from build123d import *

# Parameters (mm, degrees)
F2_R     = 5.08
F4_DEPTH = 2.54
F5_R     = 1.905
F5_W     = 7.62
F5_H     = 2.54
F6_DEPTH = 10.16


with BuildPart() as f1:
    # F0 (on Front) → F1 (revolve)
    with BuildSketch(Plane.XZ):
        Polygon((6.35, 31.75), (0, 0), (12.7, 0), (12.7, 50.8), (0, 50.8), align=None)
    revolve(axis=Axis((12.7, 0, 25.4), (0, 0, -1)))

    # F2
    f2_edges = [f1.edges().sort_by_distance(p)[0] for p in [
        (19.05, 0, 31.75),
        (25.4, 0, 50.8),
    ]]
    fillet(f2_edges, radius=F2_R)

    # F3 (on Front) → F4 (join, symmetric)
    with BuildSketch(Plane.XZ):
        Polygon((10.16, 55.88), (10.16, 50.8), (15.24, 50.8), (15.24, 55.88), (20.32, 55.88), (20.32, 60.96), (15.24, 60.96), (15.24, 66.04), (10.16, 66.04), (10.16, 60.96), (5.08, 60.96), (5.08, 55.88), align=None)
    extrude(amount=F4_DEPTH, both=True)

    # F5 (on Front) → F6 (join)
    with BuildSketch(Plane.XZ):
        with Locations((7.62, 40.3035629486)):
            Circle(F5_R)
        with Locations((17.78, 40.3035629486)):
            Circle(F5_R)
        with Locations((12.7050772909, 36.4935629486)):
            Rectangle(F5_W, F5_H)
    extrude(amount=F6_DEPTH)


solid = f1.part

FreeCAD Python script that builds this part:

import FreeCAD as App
import Part
import Sketcher
Q = App.Units.Quantity


def edges_at(feature, points):
    """Names of the edges that pass closest to the given points."""
    edges = feature.Shape.Edges
    near = lambda p: min(range(len(edges)), key=lambda i: edges[i].distToShape(Part.Vertex(*p))[0])
    return sorted({f"Edge{near(p) + 1}" for p in points})

doc = App.newDocument("Part")
body = doc.addObject("PartDesign::Body", "Body")

sketch1 = body.newObject("Sketcher::SketchObject", "Sketch")
sketch1.AttachmentSupport = (doc.getObject("XZ_Plane"), [""])
sketch1.MapMode = "FlatFace"
sketch1.addGeometry([
    Part.LineSegment(App.Vector(6, 32, 0), App.Vector(0, 0, 0)),
    Part.LineSegment(App.Vector(0, 0, 0), App.Vector(13, 0, 0)),
    Part.LineSegment(App.Vector(13, 0, 0), App.Vector(13, 51, 0)),
    Part.LineSegment(App.Vector(13, 51, 0), App.Vector(0, 51, 0)),
    Part.LineSegment(App.Vector(0, 51, 0), App.Vector(6, 32, 0)),
], False)
sketch1.addGeometry(Part.LineSegment(App.Vector(13, 51, 0), App.Vector(13, 0, 0)), True)
sketch1.addConstraint([
    Sketcher.Constraint("Coincident", 0, 2, 1, 1),
    Sketcher.Constraint("Coincident", 1, 2, 2, 1),
    Sketcher.Constraint("Coincident", 2, 2, 3, 1),
    Sketcher.Constraint("Coincident", 3, 2, 4, 1),
    Sketcher.Constraint("Coincident", 4, 2, 0, 1),
    Sketcher.Constraint("Horizontal", 1),
    Sketcher.Constraint("Vertical", 2),
    Sketcher.Constraint("Horizontal", 3),
    Sketcher.Constraint("Vertical", 5),
    Sketcher.Constraint("Coincident", 0, 2, -1, 1),
    Sketcher.Constraint("Coincident", 5, 1, 2, 2),
    Sketcher.Constraint("PointOnObject", 3, 2, -2),
    Sketcher.Constraint("PointOnObject", 5, 2, -1),
    Sketcher.Constraint("DistanceY", 2, 1, 2, 2, Q("2 in")),
    Sketcher.Constraint("DistanceX", 1, 1, 1, 2, Q("0.5 in")),
    Sketcher.Constraint("DistanceX", -1, 1, 4, 2, Q("0.25 in")),
    Sketcher.Constraint("DistanceY", -1, 1, 4, 2, Q("1.25 in")),
])
revolution = body.newObject("PartDesign::Revolution", "Revolution")
revolution.Profile = sketch1
revolution.ReferenceAxis = (sketch1, ["Axis0"])
revolution.Angle = 360
doc.recompute()

fillet = body.newObject("PartDesign::Fillet", "Fillet")
fillet.Base = (revolution, edges_at(revolution, [(19.05, 0, 31.75), (25.4, 0, 50.8)]))
fillet.Radius = Q("0.2 in")

sketch2 = body.newObject("Sketcher::SketchObject", "Sketch001")
sketch2.AttachmentSupport = (doc.getObject("XZ_Plane"), [""])
sketch2.MapMode = "FlatFace"
sketch2.addGeometry([
    Part.LineSegment(App.Vector(10, 56, 0), App.Vector(10, 51, 0)),
    Part.LineSegment(App.Vector(10, 51, 0), App.Vector(15, 51, 0)),
    Part.LineSegment(App.Vector(15, 51, 0), App.Vector(15, 56, 0)),
    Part.LineSegment(App.Vector(15, 56, 0), App.Vector(20, 56, 0)),
    Part.LineSegment(App.Vector(20, 56, 0), App.Vector(20, 61, 0)),
    Part.LineSegment(App.Vector(20, 61, 0), App.Vector(15, 61, 0)),
    Part.LineSegment(App.Vector(15, 61, 0), App.Vector(15, 66, 0)),
    Part.LineSegment(App.Vector(15, 66, 0), App.Vector(10, 66, 0)),
    Part.LineSegment(App.Vector(10, 66, 0), App.Vector(10, 61, 0)),
    Part.LineSegment(App.Vector(10, 61, 0), App.Vector(5, 61, 0)),
    Part.LineSegment(App.Vector(5, 61, 0), App.Vector(5, 56, 0)),
    Part.LineSegment(App.Vector(5, 56, 0), App.Vector(10, 56, 0)),
], False)
sketch2.addConstraint([
    Sketcher.Constraint("Coincident", 0, 2, 1, 1),
    Sketcher.Constraint("Coincident", 1, 2, 2, 1),
    Sketcher.Constraint("Coincident", 2, 2, 3, 1),
    Sketcher.Constraint("Coincident", 3, 2, 4, 1),
    Sketcher.Constraint("Coincident", 4, 2, 5, 1),
    Sketcher.Constraint("Coincident", 5, 2, 6, 1),
    Sketcher.Constraint("Coincident", 6, 2, 7, 1),
    Sketcher.Constraint("Coincident", 7, 2, 8, 1),
    Sketcher.Constraint("Coincident", 8, 2, 9, 1),
    Sketcher.Constraint("Coincident", 9, 2, 10, 1),
    Sketcher.Constraint("Coincident", 10, 2, 11, 1),
    Sketcher.Constraint("Coincident", 11, 2, 0, 1),
    Sketcher.Constraint("Vertical", 0),
    Sketcher.Constraint("Horizontal", 1),
    Sketcher.Constraint("Vertical", 2),
    Sketcher.Constraint("Horizontal", 3),
    Sketcher.Constraint("Vertical", 4),
    Sketcher.Constraint("Horizontal", 5),
    Sketcher.Constraint("Vertical", 6),
    Sketcher.Constraint("Horizontal", 7),
    Sketcher.Constraint("Vertical", 8),
    Sketcher.Constraint("Horizontal", 9),
    Sketcher.Constraint("Vertical", 10),
    Sketcher.Constraint("Horizontal", 11),
    Sketcher.Constraint("Horizontal", 5, 2, 8, 2),
    Sketcher.Constraint("Horizontal", 3, 2, 10, 2),
    Sketcher.Constraint("Vertical", 2, 2, 5, 2),
    Sketcher.Constraint("Vertical", 0, 2, 7, 2),
    Sketcher.Constraint("Equal", 1, 3),
    Sketcher.Constraint("Equal", 7, 9),
    Sketcher.Constraint("Equal", 11, 0),
    Sketcher.Constraint("Equal", 2, 4),
    Sketcher.Constraint("Equal", 4, 6),
    Sketcher.Constraint("DistanceX", 1, 1, 1, 2, Q("0.2 in")),
    Sketcher.Constraint("DistanceY", -1, 1, 0, 2, Q("2 in")),
    Sketcher.Constraint("DistanceX", -1, 1, 0, 2, Q("0.4 in")),
])
pad1 = body.newObject("PartDesign::Pad", "Pad")
pad1.Profile = sketch2
pad1.Length = Q("0.2 in")
pad1.Midplane = True

sketch3 = body.newObject("Sketcher::SketchObject", "Sketch002")
sketch3.AttachmentSupport = (doc.getObject("XZ_Plane"), [""])
sketch3.MapMode = "FlatFace"
sketch3.addGeometry([
    Part.Circle(App.Vector(7.6, 40.3, 0), App.Vector(0, 0, 1), 1.9),
    Part.Circle(App.Vector(17.8, 40.3, 0), App.Vector(0, 0, 1), 1.9),
    Part.LineSegment(App.Vector(8.9, 37.8, 0), App.Vector(8.9, 35.2, 0)),
    Part.LineSegment(App.Vector(8.9, 35.2, 0), App.Vector(16.5, 35.2, 0)),
    Part.LineSegment(App.Vector(16.5, 35.2, 0), App.Vector(16.5, 37.8, 0)),
    Part.LineSegment(App.Vector(16.5, 37.8, 0), App.Vector(8.9, 37.8, 0)),
], False)
sketch3.addConstraint([
    Sketcher.Constraint("Coincident", 2, 2, 3, 1),
    Sketcher.Constraint("Coincident", 3, 2, 4, 1),
    Sketcher.Constraint("Coincident", 4, 2, 5, 1),
    Sketcher.Constraint("Coincident", 5, 2, 2, 1),
    Sketcher.Constraint("Vertical", 2),
    Sketcher.Constraint("Horizontal", 3),
    Sketcher.Constraint("Vertical", 4),
    Sketcher.Constraint("Horizontal", 5),
    Sketcher.Constraint("Equal", 0, 1),
    Sketcher.Constraint("Horizontal", 0, 3, 1, 3),
    Sketcher.Constraint("Diameter", 0, Q("0.15 in")),
    Sketcher.Constraint("DistanceX", 3, 1, 3, 2, Q("0.3 in")),
    Sketcher.Constraint("DistanceY", 2, 2, 2, 1, Q("0.1 in")),
    Sketcher.Constraint("DistanceX", -1, 1, 0, 3, Q("0.3 in")),
    Sketcher.Constraint("DistanceX", -1, 1, 1, 3, Q("0.7 in")),
    Sketcher.Constraint("DistanceY", 2, 2, 0, 3, Q("0.2 in")),
    Sketcher.Constraint("DistanceX", -1, 1, 2, 2, Q("0.3501999 in")),
    Sketcher.Constraint("DistanceY", -1, 1, 0, 3, Q("40.303563 mm")),
])
pad2 = body.newObject("PartDesign::Pad", "Pad001")
pad2.Profile = sketch3
pad2.Length = Q("0.4 in")

doc.recompute()
